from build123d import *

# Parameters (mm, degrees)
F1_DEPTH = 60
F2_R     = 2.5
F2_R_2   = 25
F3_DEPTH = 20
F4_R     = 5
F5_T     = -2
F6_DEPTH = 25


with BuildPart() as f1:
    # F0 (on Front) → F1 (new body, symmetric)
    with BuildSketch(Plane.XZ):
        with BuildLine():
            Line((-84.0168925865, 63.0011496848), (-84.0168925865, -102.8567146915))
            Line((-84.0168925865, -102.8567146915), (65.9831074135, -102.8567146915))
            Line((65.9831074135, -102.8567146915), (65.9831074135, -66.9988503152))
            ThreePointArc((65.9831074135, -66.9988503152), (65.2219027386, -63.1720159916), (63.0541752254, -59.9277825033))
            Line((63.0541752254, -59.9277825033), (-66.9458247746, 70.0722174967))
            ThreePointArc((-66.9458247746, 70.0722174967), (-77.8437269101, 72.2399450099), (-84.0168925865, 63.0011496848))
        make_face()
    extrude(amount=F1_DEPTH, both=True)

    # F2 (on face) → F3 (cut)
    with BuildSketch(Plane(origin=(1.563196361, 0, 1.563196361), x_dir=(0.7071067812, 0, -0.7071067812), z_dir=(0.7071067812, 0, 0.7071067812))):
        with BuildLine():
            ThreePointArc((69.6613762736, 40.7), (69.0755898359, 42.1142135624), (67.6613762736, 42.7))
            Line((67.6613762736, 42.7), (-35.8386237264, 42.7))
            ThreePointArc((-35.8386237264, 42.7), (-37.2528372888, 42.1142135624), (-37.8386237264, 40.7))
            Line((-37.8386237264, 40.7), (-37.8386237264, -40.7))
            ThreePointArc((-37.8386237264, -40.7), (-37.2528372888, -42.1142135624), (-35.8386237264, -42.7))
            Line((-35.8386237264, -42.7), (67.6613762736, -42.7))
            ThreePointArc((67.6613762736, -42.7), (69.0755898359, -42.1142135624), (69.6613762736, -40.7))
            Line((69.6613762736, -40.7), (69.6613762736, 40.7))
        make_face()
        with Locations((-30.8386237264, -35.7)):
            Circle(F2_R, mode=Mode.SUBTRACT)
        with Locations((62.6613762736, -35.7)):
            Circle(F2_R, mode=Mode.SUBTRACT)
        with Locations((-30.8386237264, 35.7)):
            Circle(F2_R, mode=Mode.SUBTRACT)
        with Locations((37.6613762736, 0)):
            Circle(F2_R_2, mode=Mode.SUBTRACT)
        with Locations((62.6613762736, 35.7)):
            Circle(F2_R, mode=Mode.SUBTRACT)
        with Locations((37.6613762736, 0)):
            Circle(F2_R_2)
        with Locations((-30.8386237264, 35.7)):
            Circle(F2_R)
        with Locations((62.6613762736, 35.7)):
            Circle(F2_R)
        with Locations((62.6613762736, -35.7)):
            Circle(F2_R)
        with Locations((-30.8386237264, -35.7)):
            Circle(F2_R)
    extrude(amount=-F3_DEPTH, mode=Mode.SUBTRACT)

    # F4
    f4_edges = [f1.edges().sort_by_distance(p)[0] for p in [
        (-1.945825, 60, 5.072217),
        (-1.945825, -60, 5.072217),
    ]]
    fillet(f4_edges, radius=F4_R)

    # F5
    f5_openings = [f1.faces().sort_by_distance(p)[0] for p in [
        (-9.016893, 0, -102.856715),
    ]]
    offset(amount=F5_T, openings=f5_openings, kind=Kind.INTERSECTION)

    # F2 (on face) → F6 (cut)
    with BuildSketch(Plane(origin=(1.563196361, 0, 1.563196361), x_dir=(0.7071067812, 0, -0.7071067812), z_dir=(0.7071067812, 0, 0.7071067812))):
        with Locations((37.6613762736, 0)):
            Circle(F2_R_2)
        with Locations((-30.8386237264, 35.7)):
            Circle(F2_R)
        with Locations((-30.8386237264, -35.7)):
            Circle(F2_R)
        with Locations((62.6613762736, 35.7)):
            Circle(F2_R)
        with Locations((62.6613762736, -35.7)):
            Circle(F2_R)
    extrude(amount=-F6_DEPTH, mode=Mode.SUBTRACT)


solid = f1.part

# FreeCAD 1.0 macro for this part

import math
import FreeCAD as App
import Part
import Sketcher
Q = App.Units.Quantity


def edges_at(feature, points):
    """Names of the edges that pass closest to the given points."""
    edges = feature.Shape.Edges
    near = lambda p: min(range(len(edges)), key=lambda i: edges[i].distToShape(Part.Vertex(*p))[0])
    return sorted({f"Edge{near(p) + 1}" for p in points})


def faces_at(feature, points):
    """Names of the faces that lie closest to the given points."""
    faces = feature.Shape.Faces
    near = lambda p: min(range(len(faces)), key=lambda i: faces[i].distToShape(Part.Vertex(*p))[0])
    return sorted({f"Face{near(p) + 1}" for p in points})

doc = App.newDocument("Part")
params = doc.addObject("Spreadsheet::Sheet", "Params")
for row, (alias, value) in enumerate([
    ("sketch1_radius", "10 mm"),
    ("sketch1_width", "150 mm"),
    ("pad1_length", "120 mm"),
    ("sketch2_radius", "2 mm"),
    ("sketch2_width", "103.5 mm"),
    ("sketch2_height", "81.4 mm"),
    ("pocket1_length", "20 mm"),
    ("fillet_radius", "5 mm"),
    ("thickness_wall", "2 mm"),
    ("sketch3_diameter", "50 mm"),
    ("sketch3_diameter2", "5 mm"),
    ("pocket2_length", "25 mm"),
], start=1):
    params.set(f"A{row}", alias)
    params.set(f"B{row}", "=" + value)
    params.setAlias(f"B{row}", alias)

body = doc.addObject("PartDesign::Body", "Body")

# Sketch on XZ plane
sketch1 = doc.addObject("Sketcher::SketchObject", "Sketch")
body.addObject(sketch1)
sketch1.AttachmentSupport = (doc.XZ_Plane, [""])
sketch1.MapMode = "FlatFace"
sketch1.addGeometry(Part.LineSegment(App.Vector(-84, 63, 0), App.Vector(-84, -103, 0)), False)
sketch1.addGeometry(Part.LineSegment(App.Vector(-84, -103, 0), App.Vector(66, -103, 0)), False)
sketch1.addGeometry(Part.LineSegment(App.Vector(66, -103, 0), App.Vector(66, -67, 0)), False)
sketch1.addGeometry(Part.ArcOfCircle(Part.Circle(App.Vector(56, -67, 0), App.Vector(0, 0, 1), 10), math.radians(0), math.radians(45)), False)
sketch1.addGeometry(Part.LineSegment(App.Vector(63, -60, 0), App.Vector(-67, 70, 0)), False)
sketch1.addGeometry(Part.ArcOfCircle(Part.Circle(App.Vector(-74, 63, 0), App.Vector(0, 0, 1), 10), math.radians(45), math.radians(180)), False)
sketch1.addConstraint(Sketcher.Constraint("Coincident", 0, 2, 1, 1))
sketch1.addConstraint(Sketcher.Constraint("Coincident", 1, 2, 2, 1))
sketch1.addConstraint(Sketcher.Constraint("Tangent", 2, 2, 3, 1))
sketch1.addConstraint(Sketcher.Constraint("Tangent", 3, 2, 4, 1))
sketch1.addConstraint(Sketcher.Constraint("Tangent", 4, 2, 5, 1))
sketch1.addConstraint(Sketcher.Constraint("Tangent", 5, 2, 0, 1))
sketch1.addConstraint(Sketcher.Constraint("Vertical", 0))
sketch1.addConstraint(Sketcher.Constraint("Horizontal", 1))
sketch1.addConstraint(Sketcher.Constraint("Vertical", 2))
sketch1.addConstraint(Sketcher.Constraint("Equal", 3, 5))
sketch1.addConstraint(Sketcher.Constraint("Radius", 3, Q("10 mm")))
sketch1.addConstraint(Sketcher.Constraint("DistanceX", 1, 1, 1, 2, Q("150 mm")))
sketch1.addConstraint(Sketcher.Constraint("Angle", 4, Q("135 deg")))
sketch1.addConstraint(Sketcher.Constraint("DistanceY", 0, 2, 0, 1, Q("165.857864 mm")))
sketch1.addConstraint(Sketcher.Constraint("DistanceY", 3, 3, -1, 1, Q("66.99885 mm")))
sketch1.addConstraint(Sketcher.Constraint("DistanceX", -1, 1, 3, 3, Q("55.983107 mm")))
sketch1.setExpression("Constraints[10]", "Params.sketch1_radius")
sketch1.setExpression("Constraints[11]", "Params.sketch1_width")
pad1 = doc.addObject("PartDesign::Pad", "Pad")
body.addObject(pad1)
pad1.Profile = sketch1
pad1.setExpression("Length", "Params.pad1_length")
pad1.Midplane = True

# Sketch on an angled plane
sketch2 = doc.addObject("Sketcher::SketchObject", "Sketch001")
body.addObject(sketch2)
sketch2.Placement = App.Placement(App.Vector(1.563196, 0, 1.563196), App.Rotation(App.Vector(0.707106781, 0, -0.707106781), App.Vector(0, 0.999999999, 0), App.Vector(0.707106781, 0, 0.707106781), "ZXY"))
sketch2.addGeometry(Part.ArcOfCircle(Part.Circle(App.Vector(67.7, 40.7, 0), App.Vector(0, 0, 1), 2), math.radians(0), math.radians(90)), False)
sketch2.addGeometry(Part.LineSegment(App.Vector(67.7, 42.7, 0), App.Vector(-35.8, 42.7, 0)), False)
sketch2.addGeometry(Part.ArcOfCircle(Part.Circle(App.Vector(-35.8, 40.7, 0), App.Vector(0, 0, 1), 2), math.radians(90), math.radians(180)), False)
sketch2.addGeometry(Part.LineSegment(App.Vector(-37.8, 40.7, 0), App.Vector(-37.8, -40.7, 0)), False)
sketch2.addGeometry(Part.ArcOfCircle(Part.Circle(App.Vector(-35.8, -40.7, 0), App.Vector(0, 0, 1), 2), math.radians(180), math.radians(270)), False)
sketch2.addGeometry(Part.LineSegment(App.Vector(-35.8, -42.7, 0), App.Vector(67.7, -42.7, 0)), False)
sketch2.addGeometry(Part.ArcOfCircle(Part.Circle(App.Vector(67.7, -40.7, 0), App.Vector(0, 0, 1), 2), math.radians(-90), math.radians(0)), False)
sketch2.addGeometry(Part.LineSegment(App.Vector(69.7, -40.7, 0), App.Vector(69.7, 40.7, 0)), False)
sketch2.addConstraint(Sketcher.Constraint("Tangent", 0, 2, 1, 1))
sketch2.addConstraint(Sketcher.Constraint("Tangent", 1, 2, 2, 1))
sketch2.addConstraint(Sketcher.Constraint("Tangent", 2, 2, 3, 1))
sketch2.addConstraint(Sketcher.Constraint("Tangent", 3, 2, 4, 1))
sketch2.addConstraint(Sketcher.Constraint("Tangent", 4, 2, 5, 1))
sketch2.addConstraint(Sketcher.Constraint("Tangent", 5, 2, 6, 1))
sketch2.addConstraint(Sketcher.Constraint("Tangent", 6, 2, 7, 1))
sketch2.addConstraint(Sketcher.Constraint("Tangent", 7, 2, 0, 1))
sketch2.addConstraint(Sketcher.Constraint("Horizontal", 1))
sketch2.addConstraint(Sketcher.Constraint("Vertical", 3))
sketch2.addConstraint(Sketcher.Constraint("Horizontal", 5))
sketch2.addConstraint(Sketcher.Constraint("Vertical", 7))
sketch2.addConstraint(Sketcher.Constraint("Equal", 0, 2))
sketch2.addConstraint(Sketcher.Constraint("Equal", 2, 4))
sketch2.addConstraint(Sketcher.Constraint("Equal", 4, 6))
sketch2.addConstraint(Sketcher.Constraint("Radius", 0, Q("2 mm")))
sketch2.addConstraint(Sketcher.Constraint("DistanceX", 1, 2, 1, 1, Q("103.5 mm")))
sketch2.addConstraint(Sketcher.Constraint("DistanceY", 3, 2, 3, 1, Q("81.4 mm")))
sketch2.addConstraint(Sketcher.Constraint("DistanceY", -1, 1, 0, 3, Q("40.7 mm")))
sketch2.addConstraint(Sketcher.Constraint("DistanceX", -1, 1, 0, 3, Q("67.661376 mm")))
sketch2.setExpression("Constraints[15]", "Params.sketch2_radius")
sketch2.setExpression("Constraints[16]", "Params.sketch2_width")
sketch2.setExpression("Constraints[17]", "Params.sketch2_height")
pocket1 = doc.addObject("PartDesign::Pocket", "Pocket")
body.addObject(pocket1)
pocket1.Profile = sketch2
pocket1.setExpression("Length", "Params.pocket1_length")
doc.recompute()

fillet = doc.addObject("PartDesign::Fillet", "Fillet")
body.addObject(fillet)
fillet.Base = (pocket1, edges_at(pocket1, [(-1.946, 60, 5.072), (-1.946, -60, 5.072)]))
fillet.setExpression("Radius", "Params.fillet_radius")
doc.recompute()

thickness = doc.addObject("PartDesign::Thickness", "Thickness")
body.addObject(thickness)
thickness.Base = (fillet, faces_at(fillet, [(-9.017, 0, -102.857)]))
thickness.setExpression("Value", "Params.thickness_wall")
thickness.Reversed = True
thickness.Join = "Intersection"

# Sketch on an angled plane
sketch3 = doc.addObject("Sketcher::SketchObject", "Sketch002")
body.addObject(sketch3)
sketch3.Placement = App.Placement(App.Vector(1.563196, 0, 1.563196), App.Rotation(App.Vector(0.707106781, 0, -0.707106781), App.Vector(0, 0.999999999, 0), App.Vector(0.707106781, 0, 0.707106781), "ZXY"))
sketch3.addGeometry(Part.Circle(App.Vector(37.7, 0, 0), App.Vector(0, 0, 1), 25), False)
sketch3.addGeometry(Part.Circle(App.Vector(-30.8, 35.7, 0), App.Vector(0, 0, 1), 2.5), False)
sketch3.addGeometry(Part.Circle(App.Vector(-30.8, -35.7, 0), App.Vector(0, 0, 1), 2.5), False)
sketch3.addGeometry(Part.Circle(App.Vector(62.7, 35.7, 0), App.Vector(0, 0, 1), 2.5), False)
sketch3.addGeometry(Part.Circle(App.Vector(62.7, -35.7, 0), App.Vector(0, 0, 1), 2.5), False)
sketch3.addConstraint(Sketcher.Constraint("Equal", 1, 2))
sketch3.addConstraint(Sketcher.Constraint("Equal", 2, 3))
sketch3.addConstraint(Sketcher.Constraint("Equal", 3, 4))
sketch3.addConstraint(Sketcher.Constraint("Symmetric", 1, 3, 2, 3, -1))
sketch3.addConstraint(Sketcher.Constraint("Symmetric", 3, 3, 4, 3, -1))
sketch3.addConstraint(Sketcher.Constraint("PointOnObject", 0, 3, -1))
sketch3.addConstraint(Sketcher.Constraint("Horizontal", 1, 3, 3, 3))
sketch3.addConstraint(Sketcher.Constraint("Diameter", 0, Q("50 mm")))
sketch3.addConstraint(Sketcher.Constraint("Diameter", 1, Q("5 mm")))
sketch3.addConstraint(Sketcher.Constraint("DistanceX", 0, 3, 3, 3, Q("25 mm")))
sketch3.addConstraint(Sketcher.Constraint("DistanceY", -1, 1, 1, 3, Q("35.7 mm")))
sketch3.addConstraint(Sketcher.Constraint("DistanceX", 1, 3, 0, 3, Q("68.5 mm")))
sketch3.addConstraint(Sketcher.Constraint("DistanceX", -1, 1, 0, 3, Q("37.661376 mm")))
sketch3.setExpression("Constraints[7]", "Params.sketch3_diameter")
sketch3.setExpression("Constraints[8]", "Params.sketch3_diameter2")
pocket2 = doc.addObject("PartDesign::Pocket", "Pocket001")
body.addObject(pocket2)
pocket2.Profile = sketch3
pocket2.setExpression("Length", "Params.pocket2_length")

doc.recompute()
